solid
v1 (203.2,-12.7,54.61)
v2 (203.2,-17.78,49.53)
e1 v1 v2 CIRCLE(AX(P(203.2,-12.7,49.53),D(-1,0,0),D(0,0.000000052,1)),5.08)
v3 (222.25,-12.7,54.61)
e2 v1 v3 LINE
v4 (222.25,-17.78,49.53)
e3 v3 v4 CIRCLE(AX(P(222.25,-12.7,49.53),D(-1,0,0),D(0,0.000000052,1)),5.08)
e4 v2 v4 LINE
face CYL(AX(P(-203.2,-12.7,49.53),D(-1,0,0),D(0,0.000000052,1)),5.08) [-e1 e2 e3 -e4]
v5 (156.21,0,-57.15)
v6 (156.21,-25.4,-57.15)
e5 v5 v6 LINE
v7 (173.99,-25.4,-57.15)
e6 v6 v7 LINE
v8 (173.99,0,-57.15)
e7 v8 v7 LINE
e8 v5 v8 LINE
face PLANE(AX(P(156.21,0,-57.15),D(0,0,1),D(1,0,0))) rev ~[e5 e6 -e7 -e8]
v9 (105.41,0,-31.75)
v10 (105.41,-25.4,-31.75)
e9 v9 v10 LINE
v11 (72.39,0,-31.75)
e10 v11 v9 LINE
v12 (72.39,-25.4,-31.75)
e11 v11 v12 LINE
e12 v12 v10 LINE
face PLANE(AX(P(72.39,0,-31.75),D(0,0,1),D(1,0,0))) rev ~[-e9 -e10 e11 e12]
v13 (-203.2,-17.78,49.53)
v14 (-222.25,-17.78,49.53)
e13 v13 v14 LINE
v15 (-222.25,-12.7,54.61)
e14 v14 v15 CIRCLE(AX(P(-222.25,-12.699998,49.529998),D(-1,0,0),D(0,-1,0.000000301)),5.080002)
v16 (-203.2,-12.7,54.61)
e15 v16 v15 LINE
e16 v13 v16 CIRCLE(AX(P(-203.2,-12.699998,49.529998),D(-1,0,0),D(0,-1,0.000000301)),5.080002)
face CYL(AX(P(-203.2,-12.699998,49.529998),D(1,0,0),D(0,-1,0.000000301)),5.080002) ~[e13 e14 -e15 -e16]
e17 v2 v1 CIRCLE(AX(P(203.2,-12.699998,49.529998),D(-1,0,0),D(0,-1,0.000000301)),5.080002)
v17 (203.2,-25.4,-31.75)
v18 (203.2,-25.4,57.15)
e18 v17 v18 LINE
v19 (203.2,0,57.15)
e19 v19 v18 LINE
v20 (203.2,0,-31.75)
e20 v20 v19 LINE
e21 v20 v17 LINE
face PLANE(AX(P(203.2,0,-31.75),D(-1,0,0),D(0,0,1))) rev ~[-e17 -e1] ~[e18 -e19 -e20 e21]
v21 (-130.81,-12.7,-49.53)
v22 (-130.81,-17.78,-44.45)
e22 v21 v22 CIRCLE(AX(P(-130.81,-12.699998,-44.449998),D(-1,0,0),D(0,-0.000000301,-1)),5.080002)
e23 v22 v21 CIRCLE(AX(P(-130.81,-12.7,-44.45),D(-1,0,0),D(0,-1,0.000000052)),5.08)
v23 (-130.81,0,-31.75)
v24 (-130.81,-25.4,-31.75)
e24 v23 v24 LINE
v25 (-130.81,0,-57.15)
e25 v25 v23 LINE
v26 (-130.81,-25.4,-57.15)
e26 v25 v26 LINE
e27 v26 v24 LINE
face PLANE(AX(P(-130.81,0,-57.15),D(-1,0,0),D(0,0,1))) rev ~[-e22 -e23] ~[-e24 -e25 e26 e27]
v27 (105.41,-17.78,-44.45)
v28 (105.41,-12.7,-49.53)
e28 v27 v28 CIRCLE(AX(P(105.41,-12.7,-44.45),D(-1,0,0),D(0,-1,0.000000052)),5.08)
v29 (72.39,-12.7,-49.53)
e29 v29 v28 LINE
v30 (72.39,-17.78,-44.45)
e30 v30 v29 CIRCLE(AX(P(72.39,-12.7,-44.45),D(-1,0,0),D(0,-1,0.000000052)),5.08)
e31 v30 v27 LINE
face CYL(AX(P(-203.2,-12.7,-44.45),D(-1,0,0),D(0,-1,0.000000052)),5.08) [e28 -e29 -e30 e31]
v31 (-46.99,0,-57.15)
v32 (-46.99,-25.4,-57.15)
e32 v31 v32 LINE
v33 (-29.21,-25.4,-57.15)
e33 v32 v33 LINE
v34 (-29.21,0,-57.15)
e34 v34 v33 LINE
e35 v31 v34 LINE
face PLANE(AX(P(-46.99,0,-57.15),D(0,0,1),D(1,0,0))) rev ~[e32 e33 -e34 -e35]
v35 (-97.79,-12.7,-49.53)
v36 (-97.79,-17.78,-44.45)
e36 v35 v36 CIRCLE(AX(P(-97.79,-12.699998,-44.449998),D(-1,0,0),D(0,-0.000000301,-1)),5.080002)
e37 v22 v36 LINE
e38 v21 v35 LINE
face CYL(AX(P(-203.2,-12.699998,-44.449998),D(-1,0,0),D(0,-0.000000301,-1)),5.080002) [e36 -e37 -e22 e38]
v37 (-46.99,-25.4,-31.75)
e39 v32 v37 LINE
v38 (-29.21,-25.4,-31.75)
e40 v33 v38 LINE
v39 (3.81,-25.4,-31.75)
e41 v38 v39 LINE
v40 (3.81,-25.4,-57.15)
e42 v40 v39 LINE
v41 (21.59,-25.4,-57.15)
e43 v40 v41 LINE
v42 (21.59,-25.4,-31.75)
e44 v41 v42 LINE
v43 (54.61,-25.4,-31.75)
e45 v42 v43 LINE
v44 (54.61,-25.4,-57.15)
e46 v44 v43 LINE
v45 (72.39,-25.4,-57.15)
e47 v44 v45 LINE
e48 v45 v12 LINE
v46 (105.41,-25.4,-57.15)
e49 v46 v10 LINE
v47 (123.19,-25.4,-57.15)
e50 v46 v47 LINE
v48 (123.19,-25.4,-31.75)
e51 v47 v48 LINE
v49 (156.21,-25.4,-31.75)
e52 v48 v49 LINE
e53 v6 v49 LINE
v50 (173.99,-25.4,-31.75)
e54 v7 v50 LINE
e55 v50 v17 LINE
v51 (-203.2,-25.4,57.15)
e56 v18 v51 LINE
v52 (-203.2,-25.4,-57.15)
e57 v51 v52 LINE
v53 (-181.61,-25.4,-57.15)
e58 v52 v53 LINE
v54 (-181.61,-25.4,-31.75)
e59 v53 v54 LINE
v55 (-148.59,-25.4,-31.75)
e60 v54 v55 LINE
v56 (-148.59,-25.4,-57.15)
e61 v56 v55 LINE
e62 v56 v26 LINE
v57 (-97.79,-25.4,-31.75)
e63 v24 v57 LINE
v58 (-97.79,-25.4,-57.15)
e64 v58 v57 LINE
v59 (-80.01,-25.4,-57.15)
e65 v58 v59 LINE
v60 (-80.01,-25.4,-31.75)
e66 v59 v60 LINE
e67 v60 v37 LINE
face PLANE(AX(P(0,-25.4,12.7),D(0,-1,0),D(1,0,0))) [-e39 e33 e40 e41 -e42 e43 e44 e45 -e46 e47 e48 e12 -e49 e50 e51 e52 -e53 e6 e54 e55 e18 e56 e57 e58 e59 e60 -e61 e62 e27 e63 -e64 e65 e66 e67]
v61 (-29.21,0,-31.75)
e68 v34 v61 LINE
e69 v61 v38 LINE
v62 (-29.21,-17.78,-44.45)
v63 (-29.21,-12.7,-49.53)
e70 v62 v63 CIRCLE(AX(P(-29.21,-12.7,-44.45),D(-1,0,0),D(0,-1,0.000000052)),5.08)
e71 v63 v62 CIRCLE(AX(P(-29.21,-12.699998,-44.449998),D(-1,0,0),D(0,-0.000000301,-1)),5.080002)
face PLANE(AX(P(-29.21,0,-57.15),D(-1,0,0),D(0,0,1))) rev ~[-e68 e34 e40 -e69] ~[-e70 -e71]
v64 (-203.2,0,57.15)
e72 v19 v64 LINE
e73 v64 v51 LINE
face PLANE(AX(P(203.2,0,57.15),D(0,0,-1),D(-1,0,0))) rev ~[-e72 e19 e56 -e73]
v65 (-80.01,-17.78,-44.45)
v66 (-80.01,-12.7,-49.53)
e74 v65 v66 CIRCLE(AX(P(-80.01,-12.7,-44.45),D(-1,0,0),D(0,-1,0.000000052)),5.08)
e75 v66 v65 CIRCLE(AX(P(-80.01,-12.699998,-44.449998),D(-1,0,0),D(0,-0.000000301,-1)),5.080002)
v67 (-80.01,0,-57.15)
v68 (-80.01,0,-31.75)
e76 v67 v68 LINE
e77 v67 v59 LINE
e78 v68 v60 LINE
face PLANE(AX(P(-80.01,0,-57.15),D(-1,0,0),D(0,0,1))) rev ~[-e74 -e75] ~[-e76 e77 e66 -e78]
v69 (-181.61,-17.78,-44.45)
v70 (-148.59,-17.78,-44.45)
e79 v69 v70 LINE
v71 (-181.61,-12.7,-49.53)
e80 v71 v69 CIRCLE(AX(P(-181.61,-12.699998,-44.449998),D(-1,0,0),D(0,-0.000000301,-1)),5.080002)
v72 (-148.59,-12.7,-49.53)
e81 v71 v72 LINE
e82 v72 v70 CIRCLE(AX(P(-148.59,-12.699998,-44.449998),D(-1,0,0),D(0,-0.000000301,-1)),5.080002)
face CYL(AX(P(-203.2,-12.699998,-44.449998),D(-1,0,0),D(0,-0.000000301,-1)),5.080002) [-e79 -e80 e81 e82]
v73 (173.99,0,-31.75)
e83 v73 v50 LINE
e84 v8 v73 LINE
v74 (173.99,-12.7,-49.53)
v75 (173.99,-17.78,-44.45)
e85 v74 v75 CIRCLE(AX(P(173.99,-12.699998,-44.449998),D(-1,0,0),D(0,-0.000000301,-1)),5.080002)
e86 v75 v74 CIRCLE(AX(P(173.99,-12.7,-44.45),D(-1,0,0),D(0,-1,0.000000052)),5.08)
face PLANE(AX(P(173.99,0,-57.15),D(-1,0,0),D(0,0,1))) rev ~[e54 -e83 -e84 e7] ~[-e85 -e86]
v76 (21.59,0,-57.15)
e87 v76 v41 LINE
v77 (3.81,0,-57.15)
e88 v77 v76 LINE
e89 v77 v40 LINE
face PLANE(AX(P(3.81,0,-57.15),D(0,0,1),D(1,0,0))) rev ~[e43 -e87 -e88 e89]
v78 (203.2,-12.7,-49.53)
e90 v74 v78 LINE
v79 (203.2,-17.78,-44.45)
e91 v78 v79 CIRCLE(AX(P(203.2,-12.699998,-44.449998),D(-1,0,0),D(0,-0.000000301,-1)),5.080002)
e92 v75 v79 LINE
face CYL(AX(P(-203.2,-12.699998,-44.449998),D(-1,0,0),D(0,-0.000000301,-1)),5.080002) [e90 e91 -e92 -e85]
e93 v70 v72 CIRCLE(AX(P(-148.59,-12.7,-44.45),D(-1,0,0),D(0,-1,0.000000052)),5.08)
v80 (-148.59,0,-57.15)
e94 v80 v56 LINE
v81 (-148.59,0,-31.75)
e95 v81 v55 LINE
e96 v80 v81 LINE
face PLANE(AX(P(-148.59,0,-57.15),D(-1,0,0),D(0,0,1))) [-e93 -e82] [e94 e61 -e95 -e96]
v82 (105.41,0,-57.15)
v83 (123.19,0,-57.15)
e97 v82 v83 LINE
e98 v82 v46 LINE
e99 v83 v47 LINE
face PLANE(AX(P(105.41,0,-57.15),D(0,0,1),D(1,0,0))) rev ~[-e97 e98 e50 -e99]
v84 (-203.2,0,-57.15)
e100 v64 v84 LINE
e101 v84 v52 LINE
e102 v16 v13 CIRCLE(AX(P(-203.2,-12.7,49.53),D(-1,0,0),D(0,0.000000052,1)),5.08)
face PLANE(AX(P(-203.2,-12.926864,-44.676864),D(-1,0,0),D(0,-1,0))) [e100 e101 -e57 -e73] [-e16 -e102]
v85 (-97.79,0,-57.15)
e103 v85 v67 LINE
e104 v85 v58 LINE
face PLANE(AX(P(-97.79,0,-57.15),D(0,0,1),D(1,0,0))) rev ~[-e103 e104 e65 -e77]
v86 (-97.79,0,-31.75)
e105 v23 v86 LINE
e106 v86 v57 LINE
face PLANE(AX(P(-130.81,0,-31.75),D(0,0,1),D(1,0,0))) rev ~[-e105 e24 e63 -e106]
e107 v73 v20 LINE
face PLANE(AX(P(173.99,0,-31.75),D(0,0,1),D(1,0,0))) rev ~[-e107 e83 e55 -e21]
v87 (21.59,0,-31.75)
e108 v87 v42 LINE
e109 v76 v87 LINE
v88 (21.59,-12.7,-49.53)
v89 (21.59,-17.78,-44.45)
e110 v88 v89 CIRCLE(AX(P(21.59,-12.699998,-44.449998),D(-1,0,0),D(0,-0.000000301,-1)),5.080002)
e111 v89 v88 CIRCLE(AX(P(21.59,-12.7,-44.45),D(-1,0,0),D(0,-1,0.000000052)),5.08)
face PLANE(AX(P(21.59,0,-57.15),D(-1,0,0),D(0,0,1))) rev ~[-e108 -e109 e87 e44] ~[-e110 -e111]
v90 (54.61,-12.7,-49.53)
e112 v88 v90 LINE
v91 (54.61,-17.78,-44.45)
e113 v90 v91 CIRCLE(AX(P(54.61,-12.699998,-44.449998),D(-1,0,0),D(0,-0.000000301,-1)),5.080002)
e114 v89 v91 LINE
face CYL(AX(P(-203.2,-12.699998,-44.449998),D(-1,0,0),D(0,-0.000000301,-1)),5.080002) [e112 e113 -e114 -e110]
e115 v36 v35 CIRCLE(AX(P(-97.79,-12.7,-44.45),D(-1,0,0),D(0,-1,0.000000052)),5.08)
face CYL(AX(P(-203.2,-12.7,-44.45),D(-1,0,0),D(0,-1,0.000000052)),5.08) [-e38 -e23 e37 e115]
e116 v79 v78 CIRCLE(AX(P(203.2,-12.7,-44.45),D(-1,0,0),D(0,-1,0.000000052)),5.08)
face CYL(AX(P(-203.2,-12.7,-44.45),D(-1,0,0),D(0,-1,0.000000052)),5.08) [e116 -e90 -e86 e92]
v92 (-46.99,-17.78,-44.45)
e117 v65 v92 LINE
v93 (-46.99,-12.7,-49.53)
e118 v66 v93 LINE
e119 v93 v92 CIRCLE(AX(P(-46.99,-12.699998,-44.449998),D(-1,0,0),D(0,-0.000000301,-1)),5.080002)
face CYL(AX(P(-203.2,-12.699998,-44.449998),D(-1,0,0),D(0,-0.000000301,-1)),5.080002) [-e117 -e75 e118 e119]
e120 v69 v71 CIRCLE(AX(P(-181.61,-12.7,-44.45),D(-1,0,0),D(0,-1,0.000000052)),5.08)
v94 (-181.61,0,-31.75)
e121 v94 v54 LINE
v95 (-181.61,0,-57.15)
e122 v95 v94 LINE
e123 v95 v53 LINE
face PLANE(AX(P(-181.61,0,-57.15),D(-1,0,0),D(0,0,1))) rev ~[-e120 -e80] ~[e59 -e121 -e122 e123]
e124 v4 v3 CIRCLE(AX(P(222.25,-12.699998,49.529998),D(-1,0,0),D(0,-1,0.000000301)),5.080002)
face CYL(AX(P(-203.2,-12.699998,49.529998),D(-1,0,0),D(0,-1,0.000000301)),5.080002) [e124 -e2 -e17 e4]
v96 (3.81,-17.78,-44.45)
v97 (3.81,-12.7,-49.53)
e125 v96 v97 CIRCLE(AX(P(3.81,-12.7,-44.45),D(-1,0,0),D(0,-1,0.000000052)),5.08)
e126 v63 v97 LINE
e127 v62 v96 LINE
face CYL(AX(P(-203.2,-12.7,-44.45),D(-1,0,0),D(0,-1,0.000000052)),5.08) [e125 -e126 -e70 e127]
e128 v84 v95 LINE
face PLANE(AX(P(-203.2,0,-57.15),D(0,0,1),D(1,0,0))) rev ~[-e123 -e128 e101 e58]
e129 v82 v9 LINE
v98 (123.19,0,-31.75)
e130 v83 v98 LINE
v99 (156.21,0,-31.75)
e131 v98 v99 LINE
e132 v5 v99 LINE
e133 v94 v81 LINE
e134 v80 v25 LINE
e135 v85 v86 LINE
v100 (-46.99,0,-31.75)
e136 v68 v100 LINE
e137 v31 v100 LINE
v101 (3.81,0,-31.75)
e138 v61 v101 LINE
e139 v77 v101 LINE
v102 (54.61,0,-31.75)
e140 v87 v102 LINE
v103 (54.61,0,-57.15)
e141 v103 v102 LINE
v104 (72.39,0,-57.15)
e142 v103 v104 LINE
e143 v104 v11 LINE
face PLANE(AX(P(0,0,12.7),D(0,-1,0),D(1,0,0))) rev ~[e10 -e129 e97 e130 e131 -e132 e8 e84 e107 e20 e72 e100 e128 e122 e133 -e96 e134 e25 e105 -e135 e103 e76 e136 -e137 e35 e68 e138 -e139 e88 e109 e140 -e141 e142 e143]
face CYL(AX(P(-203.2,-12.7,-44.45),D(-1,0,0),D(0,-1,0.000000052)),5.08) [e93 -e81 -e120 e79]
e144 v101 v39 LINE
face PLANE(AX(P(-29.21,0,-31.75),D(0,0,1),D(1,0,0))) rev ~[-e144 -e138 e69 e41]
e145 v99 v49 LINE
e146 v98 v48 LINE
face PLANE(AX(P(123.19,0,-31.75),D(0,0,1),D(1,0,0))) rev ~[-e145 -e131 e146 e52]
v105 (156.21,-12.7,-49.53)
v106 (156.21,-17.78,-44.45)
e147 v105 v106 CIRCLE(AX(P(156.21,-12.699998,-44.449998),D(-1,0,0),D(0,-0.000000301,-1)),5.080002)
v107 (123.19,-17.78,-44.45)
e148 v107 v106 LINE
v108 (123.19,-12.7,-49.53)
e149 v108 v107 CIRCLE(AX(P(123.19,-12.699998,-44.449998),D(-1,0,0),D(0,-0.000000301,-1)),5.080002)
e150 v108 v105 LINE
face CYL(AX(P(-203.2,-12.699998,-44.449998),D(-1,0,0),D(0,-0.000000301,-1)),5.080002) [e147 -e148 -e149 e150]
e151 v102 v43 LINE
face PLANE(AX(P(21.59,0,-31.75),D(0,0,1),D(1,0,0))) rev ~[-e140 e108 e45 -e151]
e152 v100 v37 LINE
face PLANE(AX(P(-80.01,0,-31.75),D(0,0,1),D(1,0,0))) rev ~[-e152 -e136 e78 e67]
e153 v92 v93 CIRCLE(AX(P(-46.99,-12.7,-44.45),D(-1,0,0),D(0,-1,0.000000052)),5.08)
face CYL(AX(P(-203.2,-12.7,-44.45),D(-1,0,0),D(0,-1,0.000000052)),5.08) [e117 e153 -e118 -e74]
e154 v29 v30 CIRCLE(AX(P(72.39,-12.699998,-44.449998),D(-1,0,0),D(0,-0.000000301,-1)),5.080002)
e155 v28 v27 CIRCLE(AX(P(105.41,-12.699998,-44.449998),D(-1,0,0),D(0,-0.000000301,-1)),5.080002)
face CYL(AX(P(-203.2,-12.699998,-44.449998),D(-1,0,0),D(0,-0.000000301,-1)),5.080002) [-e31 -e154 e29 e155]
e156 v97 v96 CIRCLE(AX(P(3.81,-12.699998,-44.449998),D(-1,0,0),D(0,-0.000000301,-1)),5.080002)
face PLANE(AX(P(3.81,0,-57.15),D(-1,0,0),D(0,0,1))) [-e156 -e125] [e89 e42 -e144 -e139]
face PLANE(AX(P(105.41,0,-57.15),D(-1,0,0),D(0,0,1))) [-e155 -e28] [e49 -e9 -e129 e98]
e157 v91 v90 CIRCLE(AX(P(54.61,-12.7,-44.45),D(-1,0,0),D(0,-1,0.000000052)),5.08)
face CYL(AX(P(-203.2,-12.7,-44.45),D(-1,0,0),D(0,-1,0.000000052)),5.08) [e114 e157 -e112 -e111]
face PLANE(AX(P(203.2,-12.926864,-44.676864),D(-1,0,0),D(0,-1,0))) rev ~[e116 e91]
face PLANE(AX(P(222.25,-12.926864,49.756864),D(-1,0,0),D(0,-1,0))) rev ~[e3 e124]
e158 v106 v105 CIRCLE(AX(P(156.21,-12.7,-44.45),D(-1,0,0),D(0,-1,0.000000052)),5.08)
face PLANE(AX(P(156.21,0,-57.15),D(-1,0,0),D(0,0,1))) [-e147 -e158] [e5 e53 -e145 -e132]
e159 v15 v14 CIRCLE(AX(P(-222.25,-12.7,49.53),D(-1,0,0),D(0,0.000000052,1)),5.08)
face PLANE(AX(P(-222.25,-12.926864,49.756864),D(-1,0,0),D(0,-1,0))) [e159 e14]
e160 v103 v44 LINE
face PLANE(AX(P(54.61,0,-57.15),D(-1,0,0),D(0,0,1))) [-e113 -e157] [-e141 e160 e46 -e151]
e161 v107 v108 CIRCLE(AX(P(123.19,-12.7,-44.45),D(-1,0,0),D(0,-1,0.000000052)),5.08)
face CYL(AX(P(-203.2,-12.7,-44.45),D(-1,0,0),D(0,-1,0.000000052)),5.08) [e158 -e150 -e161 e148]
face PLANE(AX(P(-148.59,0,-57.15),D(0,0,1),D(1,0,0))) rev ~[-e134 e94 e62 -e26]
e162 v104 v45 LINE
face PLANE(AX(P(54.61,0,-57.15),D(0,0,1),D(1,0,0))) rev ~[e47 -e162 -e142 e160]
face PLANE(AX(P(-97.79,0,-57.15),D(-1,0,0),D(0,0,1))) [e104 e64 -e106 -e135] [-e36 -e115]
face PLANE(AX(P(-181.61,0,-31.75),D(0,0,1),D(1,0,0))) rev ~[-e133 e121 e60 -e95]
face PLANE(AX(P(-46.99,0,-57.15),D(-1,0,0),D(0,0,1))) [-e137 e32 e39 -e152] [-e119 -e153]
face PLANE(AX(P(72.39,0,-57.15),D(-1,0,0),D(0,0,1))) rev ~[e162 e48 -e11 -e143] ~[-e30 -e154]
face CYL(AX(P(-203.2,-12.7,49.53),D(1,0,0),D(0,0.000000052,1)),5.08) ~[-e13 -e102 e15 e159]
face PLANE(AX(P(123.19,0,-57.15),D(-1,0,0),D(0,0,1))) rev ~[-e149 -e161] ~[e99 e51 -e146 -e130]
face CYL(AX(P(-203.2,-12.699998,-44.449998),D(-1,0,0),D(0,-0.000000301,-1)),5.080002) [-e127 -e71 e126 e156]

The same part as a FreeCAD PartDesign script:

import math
import FreeCAD as App
import Part
import Sketcher
from FreeCAD import Vector
Q = App.Units.Quantity


def add_polygon(sketch, points):
    """Adds a closed chain of lines whose ends are joined by coincident constraints."""
    first, n = sketch.GeometryCount, len(points)
    for a, b in zip(points, points[1:] + points[:1]):
        sketch.addGeometry(Part.LineSegment(App.Vector(*a, 0), App.Vector(*b, 0)), False)
    for i in range(n):
        sketch.addConstraint(Sketcher.Constraint("Coincident", first + i, 2, first + (i + 1) % n, 1))

doc = App.newDocument("Part")
body = doc.addObject("PartDesign::Body", "Body")

# Sketch on XZ plane
sketch1 = body.newObject("Sketcher::SketchObject", "Sketch")
sketch1.AttachmentSupport = (doc.getObject("XZ_Plane"), [""])
sketch1.MapMode = "FlatFace"
add_polygon(sketch1, [(203, -32), (203, 57), (-203, 57), (-203, -57), (-182, -57), (-182, -32), (-149, -32), (-149, -57), (-131, -57), (-131, -32), (-98, -32), (-98, -57), (-80, -57), (-80, -32), (-47, -32), (-47, -57), (-29, -57), (-29, -32), (4, -32), (4, -57), (22, -57), (22, -32), (55, -32), (55, -57), (72, -57), (72, -32), (105, -32), (105, -57), (123, -57), (123, -32), (156, -32), (156, -57), (174, -57), (174, -32)])  # lines 0-33
sketch1.addConstraint([
    Sketcher.Constraint("Vertical", 0),
    Sketcher.Constraint("Horizontal", 1),
    Sketcher.Constraint("Vertical", 2),
    Sketcher.Constraint("Horizontal", 3),
    Sketcher.Constraint("Vertical", 4),
    Sketcher.Constraint("Horizontal", 5),
    Sketcher.Constraint("Vertical", 6),
    Sketcher.Constraint("Horizontal", 7),
    Sketcher.Constraint("Vertical", 8),
    Sketcher.Constraint("Horizontal", 9),
    Sketcher.Constraint("Vertical", 10),
    Sketcher.Constraint("Horizontal", 11),
    Sketcher.Constraint("Vertical", 12),
    Sketcher.Constraint("Horizontal", 13),
    Sketcher.Constraint("Vertical", 14),
    Sketcher.Constraint("Horizontal", 15),
    Sketcher.Constraint("Vertical", 16),
    Sketcher.Constraint("Horizontal", 17),
    Sketcher.Constraint("Vertical", 18),
    Sketcher.Constraint("Horizontal", 19),
    Sketcher.Constraint("Vertical", 20),
    Sketcher.Constraint("Horizontal", 21),
    Sketcher.Constraint("Vertical", 22),
    Sketcher.Constraint("Horizontal", 23),
    Sketcher.Constraint("Vertical", 24),
    Sketcher.Constraint("Horizontal", 25),
    Sketcher.Constraint("Vertical", 26),
    Sketcher.Constraint("Horizontal", 27),
    Sketcher.Constraint("Vertical", 28),
    Sketcher.Constraint("Horizontal", 29),
    Sketcher.Constraint("Vertical", 30),
    Sketcher.Constraint("Horizontal", 31),
    Sketcher.Constraint("Vertical", 32),
    Sketcher.Constraint("Horizontal", 33),
    Sketcher.Constraint("Symmetric", 0, 2, 2, 2, -1, 1),
    Sketcher.Constraint("Horizontal", 3, 2, 6, 2),
    Sketcher.Constraint("Horizontal", 5, 2, 8, 2),
    Sketcher.Constraint("Horizontal", 7, 2, 10, 2),
    Sketcher.Constraint("Horizontal", 9, 2, 12, 2),
    Sketcher.Constraint("Horizontal", 11, 2, 14, 2),
    Sketcher.Constraint("Horizontal", 13, 2, 16, 2),
    Sketcher.Constraint("Horizontal", 15, 2, 18, 2),
    Sketcher.Constraint("Horizontal", 17, 2, 20, 2),
    Sketcher.Constraint("Horizontal", 19, 2, 22, 2),
    Sketcher.Constraint("Horizontal", 21, 2, 24, 2),
    Sketcher.Constraint("Horizontal", 23, 2, 26, 2),
    Sketcher.Constraint("Horizontal", 25, 2, 28, 2),
    Sketcher.Constraint("Horizontal", 27, 2, 30, 2),
    Sketcher.Constraint("Horizontal", 29, 2, 32, 2),
    Sketcher.Constraint("Equal", 5, 9),
    Sketcher.Constraint("Equal", 7, 11),
    Sketcher.Constraint("Equal", 9, 13),
    Sketcher.Constraint("Equal", 11, 15),
    Sketcher.Constraint("Equal", 13, 17),
    Sketcher.Constraint("Equal", 15, 19),
    Sketcher.Constraint("Equal", 17, 21),
    Sketcher.Constraint("Equal", 19, 23),
    Sketcher.Constraint("Equal", 21, 25),
    Sketcher.Constraint("Equal", 23, 27),
    Sketcher.Constraint("Equal", 25, 29),
    Sketcher.Constraint("Equal", 27, 31),
    Sketcher.Constraint("DistanceX", 1, 2, 1, 1, Q("16 in")),
    Sketcher.Constraint("DistanceY", 4, 1, 4, 2, Q("1 in")),
    Sketcher.Constraint("DistanceX", 5, 1, 5, 2, Q("1.3 in")),
    Sketcher.Constraint("DistanceX", 7, 1, 7, 2, Q("0.7 in")),
    Sketcher.Constraint("DistanceY", 0, 1, 0, 2, Q("3.5 in")),
    Sketcher.Constraint("DistanceX", 3, 1, 3, 2, Q("0.85 in")),
])
pad1 = body.newObject("PartDesign::Pad", "Pad")
pad1.Profile = sketch1
pad1.Length = Q("1 in")

# Sketch on YZ plane
sketch2 = body.newObject("Sketcher::SketchObject", "Sketch001")
sketch2.AttachmentSupport = (doc.getObject("YZ_Plane"), [""])
sketch2.MapMode = "FlatFace"
sketch2.AttachmentOffset = App.Placement(Vector(0, 0, -8 * 25.4), App.Rotation())
sketch2.addGeometry([
    Part.ArcOfCircle(Part.Circle(Vector(-13, -44, 0), Vector(0, 0, 1), 5), math.radians(-180), math.radians(-90)),
    Part.ArcOfCircle(Part.Circle(Vector(-13, -44, 0), Vector(0, 0, 1), 5), math.radians(-90), math.radians(180)),
], False)
sketch2.addConstraint([
    Sketcher.Constraint("Tangent", 0, 1, 1, 2),
    Sketcher.Constraint("Coincident", 1, 1, 0, 2),
    Sketcher.Constraint("Horizontal", 1, 3, 0, 1),
    Sketcher.Constraint("Vertical", 0, 3, 1, 1),
    Sketcher.Constraint("Radius", 0, Q("0.2000001 in")),
    Sketcher.Constraint("DistanceX", 0, 3, -1, 1, Q("0.4999999 in")),
    Sketcher.Constraint("DistanceY", 0, 3, -1, 1, Q("1.7499999 in")),
])
pad2 = body.newObject("PartDesign::Pad", "Pad001")
pad2.Profile = sketch2
pad2.Length = Q("16 in")

# Sketch on YZ plane
sketch3 = body.newObject("Sketcher::SketchObject", "Sketch002")
sketch3.AttachmentSupport = (doc.getObject("YZ_Plane"), [""])
sketch3.MapMode = "FlatFace"
sketch3.AttachmentOffset = App.Placement(Vector(0, 0, -8 * 25.4), App.Rotation())
sketch3.addGeometry([
    Part.ArcOfCircle(Part.Circle(Vector(-13, 50, 0), Vector(0, 0, 1), 5), math.radians(-180), math.radians(90)),
    Part.ArcOfCircle(Part.Circle(Vector(-13, 50, 0), Vector(0, 0, 1), 5), math.radians(90), math.radians(180)),
], False)
sketch3.addConstraint([
    Sketcher.Constraint("Tangent", 0, 1, 1, 2),
    Sketcher.Constraint("Coincident", 1, 1, 0, 2),
    Sketcher.Constraint("Horizontal", 1, 3, 0, 1),
    Sketcher.Constraint("Vertical", 0, 3, 1, 1),
    Sketcher.Constraint("Radius", 0, Q("0.2 in")),
    Sketcher.Constraint("DistanceX", 0, 3, -1, 1, Q("0.5 in")),
    Sketcher.Constraint("DistanceY", -1, 1, 0, 3, Q("1.95 in")),
])
pad3 = body.newObject("PartDesign::Pad", "Pad002")
pad3.Profile = sketch3
pad3.Type = "TwoLengths"
pad3.Length = Q("0.75 in")
pad3.Length2 = Q("16.75 in")
pad3.Reversed = True

doc.recompute()
